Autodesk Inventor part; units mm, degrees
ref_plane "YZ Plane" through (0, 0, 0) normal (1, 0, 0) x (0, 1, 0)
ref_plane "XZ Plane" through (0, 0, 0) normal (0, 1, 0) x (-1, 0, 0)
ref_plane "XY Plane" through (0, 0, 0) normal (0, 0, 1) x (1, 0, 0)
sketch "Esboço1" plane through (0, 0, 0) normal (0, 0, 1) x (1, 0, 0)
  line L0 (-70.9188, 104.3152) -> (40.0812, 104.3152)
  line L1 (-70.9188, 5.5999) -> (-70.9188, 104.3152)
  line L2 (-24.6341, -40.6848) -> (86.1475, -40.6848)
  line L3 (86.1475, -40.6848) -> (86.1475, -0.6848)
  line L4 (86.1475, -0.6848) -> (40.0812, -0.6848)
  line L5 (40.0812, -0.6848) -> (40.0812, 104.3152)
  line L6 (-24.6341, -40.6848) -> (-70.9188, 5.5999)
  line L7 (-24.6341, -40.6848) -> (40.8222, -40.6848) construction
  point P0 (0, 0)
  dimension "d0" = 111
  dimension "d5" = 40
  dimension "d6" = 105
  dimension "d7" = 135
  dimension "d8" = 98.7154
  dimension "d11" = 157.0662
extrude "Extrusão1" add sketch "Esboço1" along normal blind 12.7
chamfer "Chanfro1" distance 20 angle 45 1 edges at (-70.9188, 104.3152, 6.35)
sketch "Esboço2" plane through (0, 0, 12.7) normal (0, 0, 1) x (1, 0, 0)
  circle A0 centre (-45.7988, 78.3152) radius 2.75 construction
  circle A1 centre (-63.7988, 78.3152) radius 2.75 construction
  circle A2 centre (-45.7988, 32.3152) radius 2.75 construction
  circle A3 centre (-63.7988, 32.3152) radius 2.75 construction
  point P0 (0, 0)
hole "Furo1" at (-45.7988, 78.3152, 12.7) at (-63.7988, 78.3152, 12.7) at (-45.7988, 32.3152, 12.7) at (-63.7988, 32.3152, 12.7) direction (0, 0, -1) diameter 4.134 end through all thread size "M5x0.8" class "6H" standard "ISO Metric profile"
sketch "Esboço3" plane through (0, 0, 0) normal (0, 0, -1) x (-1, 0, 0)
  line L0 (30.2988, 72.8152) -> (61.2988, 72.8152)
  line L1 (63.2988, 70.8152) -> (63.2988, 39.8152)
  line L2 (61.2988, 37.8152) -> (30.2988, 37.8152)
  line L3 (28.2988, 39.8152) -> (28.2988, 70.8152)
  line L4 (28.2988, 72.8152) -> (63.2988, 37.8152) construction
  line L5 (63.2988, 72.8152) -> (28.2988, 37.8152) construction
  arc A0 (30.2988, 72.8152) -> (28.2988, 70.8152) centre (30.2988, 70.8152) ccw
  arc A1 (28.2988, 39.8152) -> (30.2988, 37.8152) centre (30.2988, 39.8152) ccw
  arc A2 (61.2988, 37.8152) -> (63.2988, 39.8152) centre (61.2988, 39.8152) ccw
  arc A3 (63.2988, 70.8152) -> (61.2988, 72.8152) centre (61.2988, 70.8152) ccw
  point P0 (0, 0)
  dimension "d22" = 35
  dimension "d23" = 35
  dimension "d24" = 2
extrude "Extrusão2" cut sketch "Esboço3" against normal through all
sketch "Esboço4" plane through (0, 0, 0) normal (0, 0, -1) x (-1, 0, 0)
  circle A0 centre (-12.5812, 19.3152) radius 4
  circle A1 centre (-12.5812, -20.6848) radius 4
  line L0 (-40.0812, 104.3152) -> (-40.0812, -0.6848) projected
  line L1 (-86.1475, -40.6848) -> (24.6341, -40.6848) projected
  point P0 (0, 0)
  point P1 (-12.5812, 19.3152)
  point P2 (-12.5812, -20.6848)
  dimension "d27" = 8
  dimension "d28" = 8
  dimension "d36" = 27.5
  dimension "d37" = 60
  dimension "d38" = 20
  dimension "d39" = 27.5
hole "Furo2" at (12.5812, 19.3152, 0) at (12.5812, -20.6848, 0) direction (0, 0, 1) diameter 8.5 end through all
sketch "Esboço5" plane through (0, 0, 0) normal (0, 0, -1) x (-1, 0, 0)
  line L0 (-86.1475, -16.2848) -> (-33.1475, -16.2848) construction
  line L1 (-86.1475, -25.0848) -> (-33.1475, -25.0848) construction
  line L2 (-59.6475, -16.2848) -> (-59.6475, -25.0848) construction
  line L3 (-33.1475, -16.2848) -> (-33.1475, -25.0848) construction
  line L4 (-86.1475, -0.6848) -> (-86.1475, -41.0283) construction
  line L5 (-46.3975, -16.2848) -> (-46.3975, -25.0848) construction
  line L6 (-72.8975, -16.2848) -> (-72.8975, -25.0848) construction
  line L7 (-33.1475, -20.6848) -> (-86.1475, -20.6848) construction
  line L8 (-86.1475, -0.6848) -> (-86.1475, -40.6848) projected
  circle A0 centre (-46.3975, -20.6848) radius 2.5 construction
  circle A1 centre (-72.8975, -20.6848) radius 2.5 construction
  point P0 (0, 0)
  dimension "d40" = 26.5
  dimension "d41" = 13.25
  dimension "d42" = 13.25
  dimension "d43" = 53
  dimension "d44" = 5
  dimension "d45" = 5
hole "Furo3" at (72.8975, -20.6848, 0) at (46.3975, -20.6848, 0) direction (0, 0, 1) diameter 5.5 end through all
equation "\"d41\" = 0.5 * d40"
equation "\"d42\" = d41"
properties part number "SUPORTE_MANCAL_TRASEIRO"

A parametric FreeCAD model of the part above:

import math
import FreeCAD as App
import Part
import Sketcher

V = App.Vector
Q = App.Units.Quantity


def edges_at(feature, points):
    """Names of the edges that pass closest to the given points."""
    edges = feature.Shape.Edges
    near = lambda p: min(range(len(edges)), key=lambda i: edges[i].distToShape(Part.Vertex(*p))[0])
    return sorted({f"Edge{near(p) + 1}" for p in points})

doc = App.newDocument("Part")
body = doc.addObject("PartDesign::Body", "Body")

# Sketch on XY plane
sketch1 = doc.addObject("Sketcher::SketchObject", "Sketch")
body.addObject(sketch1)
sketch1.AttachmentSupport = (doc.XY_Plane, [""])
sketch1.MapMode = "FlatFace"
sketch1.addGeometry(Part.LineSegment(V(40.0812, 104.3152, 0), V(-70.9188, 104.3152, 0)), False)
sketch1.addGeometry(Part.LineSegment(V(-70.9188, 104.3152, 0), V(-70.9188, 5.5999, 0)), False)
sketch1.addGeometry(Part.LineSegment(V(-70.9188, 5.5999, 0), V(-24.6341, -40.6848, 0)), False)
sketch1.addGeometry(Part.LineSegment(V(-24.6341, -40.6848, 0), V(86.1475, -40.6848, 0)), False)
sketch1.addGeometry(Part.LineSegment(V(86.1475, -40.6848, 0), V(86.1475, -0.6848, 0)), False)
sketch1.addGeometry(Part.LineSegment(V(86.1475, -0.6848, 0), V(40.0812, -0.6848, 0)), False)
sketch1.addGeometry(Part.LineSegment(V(40.0812, -0.6848, 0), V(40.0812, 104.3152, 0)), False)
sketch1.addConstraint(Sketcher.Constraint("Coincident", 0, 2, 1, 1))
sketch1.addConstraint(Sketcher.Constraint("Coincident", 1, 2, 2, 1))
sketch1.addConstraint(Sketcher.Constraint("Coincident", 2, 2, 3, 1))
sketch1.addConstraint(Sketcher.Constraint("Coincident", 3, 2, 4, 1))
sketch1.addConstraint(Sketcher.Constraint("Coincident", 4, 2, 5, 1))
sketch1.addConstraint(Sketcher.Constraint("Coincident", 5, 2, 6, 1))
sketch1.addConstraint(Sketcher.Constraint("Coincident", 6, 2, 0, 1))
sketch1.addConstraint(Sketcher.Constraint("Horizontal", 0))
sketch1.addConstraint(Sketcher.Constraint("Vertical", 1))
sketch1.addConstraint(Sketcher.Constraint("Horizontal", 3))
sketch1.addConstraint(Sketcher.Constraint("Vertical", 4))
sketch1.addConstraint(Sketcher.Constraint("Horizontal", 5))
sketch1.addConstraint(Sketcher.Constraint("Vertical", 6))
sketch1.addConstraint(Sketcher.Constraint("DistanceX", 0, 2, 0, 1, 111.0))
sketch1.addConstraint(Sketcher.Constraint("DistanceY", 4, 1, 4, 2, 40.0))
sketch1.addConstraint(Sketcher.Constraint("DistanceY", 6, 1, 6, 2, 105.0))
sketch1.addConstraint(Sketcher.Constraint("Angle", 2, Q("-45 deg")))
sketch1.addConstraint(Sketcher.Constraint("DistanceY", 1, 2, 1, 1, 98.7153))
sketch1.addConstraint(Sketcher.Constraint("DistanceY", -1, 1, 1, 2, 5.6))
sketch1.addConstraint(Sketcher.Constraint("DistanceX", 1, 2, 3, 2, 157.0663))
sketch1.addConstraint(Sketcher.Constraint("DistanceX", 2, 2, -1, 1, 24.634))
pad1 = doc.addObject("PartDesign::Pad", "Pad")
body.addObject(pad1)
pad1.Profile = sketch1
pad1.Length = 12.7
doc.recompute()

chamfer = doc.addObject("PartDesign::Chamfer", "Chamfer")
body.addObject(chamfer)
chamfer.Base = (pad1, edges_at(pad1, [(-70.919, 104.315, 6.35)]))
chamfer.Size = 20

# Sketch on XY plane
sketch2 = doc.addObject("Sketcher::SketchObject", "Sketch001")
body.addObject(sketch2)
sketch2.AttachmentSupport = (doc.XY_Plane, [""])
sketch2.MapMode = "FlatFace"
sketch2.AttachmentOffset = App.Placement(V(0, 0, 12.7), App.Rotation())
sketch2.addGeometry(Part.Circle(V(-45.7988, 78.3152, 0), V(0, 0, 1), 2.067), False)
sketch2.addGeometry(Part.Circle(V(-63.7988, 78.3152, 0), V(0, 0, 1), 2.067), False)
sketch2.addGeometry(Part.Circle(V(-45.7988, 32.3152, 0), V(0, 0, 1), 2.067), False)
sketch2.addGeometry(Part.Circle(V(-63.7988, 32.3152, 0), V(0, 0, 1), 2.067), False)
sketch2.addConstraint(Sketcher.Constraint("Equal", 0, 1))
sketch2.addConstraint(Sketcher.Constraint("Equal", 1, 2))
sketch2.addConstraint(Sketcher.Constraint("Equal", 2, 3))
sketch2.addConstraint(Sketcher.Constraint("Horizontal", 0, 3, 1, 3))
sketch2.addConstraint(Sketcher.Constraint("Horizontal", 2, 3, 3, 3))
sketch2.addConstraint(Sketcher.Constraint("Vertical", 0, 3, 2, 3))
sketch2.addConstraint(Sketcher.Constraint("Vertical", 1, 3, 3, 3))
sketch2.addConstraint(Sketcher.Constraint("Diameter", 0, 4.134))
sketch2.addConstraint(Sketcher.Constraint("DistanceX", 1, 3, 0, 3, 18.0))
sketch2.addConstraint(Sketcher.Constraint("DistanceY", 2, 3, 0, 3, 46.0))
sketch2.addConstraint(Sketcher.Constraint("DistanceX", 0, 3, -1, 1, 45.7988))
sketch2.addConstraint(Sketcher.Constraint("DistanceY", -1, 1, 0, 3, 78.3152))
doc.recompute()
hole = doc.addObject("PartDesign::Hole", "Hole")
body.addObject(hole)
hole.Profile = sketch2
hole.ThreadType = "None"
hole.Diameter = 4.134
hole.DepthType = "ThroughAll"

# Sketch on XY plane
sketch3 = doc.addObject("Sketcher::SketchObject", "Sketch002")
body.addObject(sketch3)
sketch3.AttachmentSupport = (doc.XY_Plane, [""])
sketch3.MapMode = "FlatFace"
sketch3.addGeometry(Part.LineSegment(V(-61.2988, 72.8152, 0), V(-30.2988, 72.8152, 0)), False)
sketch3.addGeometry(Part.ArcOfCircle(Part.Circle(V(-30.2988, 70.8152, 0), V(0, 0, 1), 2), math.radians(0), math.radians(90)), False)
sketch3.addGeometry(Part.LineSegment(V(-28.2988, 70.8152, 0), V(-28.2988, 39.8152, 0)), False)
sketch3.addGeometry(Part.ArcOfCircle(Part.Circle(V(-30.2988, 39.8152, 0), V(0, 0, 1), 2), math.radians(-90), math.radians(0)), False)
sketch3.addGeometry(Part.LineSegment(V(-30.2988, 37.8152, 0), V(-61.2988, 37.8152, 0)), False)
sketch3.addGeometry(Part.ArcOfCircle(Part.Circle(V(-61.2988, 39.8152, 0), V(0, 0, 1), 2), math.radians(180), math.radians(270)), False)
sketch3.addGeometry(Part.LineSegment(V(-63.2988, 39.8152, 0), V(-63.2988, 70.8152, 0)), False)
sketch3.addGeometry(Part.ArcOfCircle(Part.Circle(V(-61.2988, 70.8152, 0), V(0, 0, 1), 2), math.radians(90), math.radians(180)), False)
sketch3.addConstraint(Sketcher.Constraint("Tangent", 0, 2, 1, 2))
sketch3.addConstraint(Sketcher.Constraint("Tangent", 1, 1, 2, 1))
sketch3.addConstraint(Sketcher.Constraint("Tangent", 2, 2, 3, 2))
sketch3.addConstraint(Sketcher.Constraint("Tangent", 3, 1, 4, 1))
sketch3.addConstraint(Sketcher.Constraint("Tangent", 4, 2, 5, 2))
sketch3.addConstraint(Sketcher.Constraint("Tangent", 5, 1, 6, 1))
sketch3.addConstraint(Sketcher.Constraint("Tangent", 6, 2, 7, 2))
sketch3.addConstraint(Sketcher.Constraint("Tangent", 7, 1, 0, 1))
sketch3.addConstraint(Sketcher.Constraint("Horizontal", 0))
sketch3.addConstraint(Sketcher.Constraint("Vertical", 2))
sketch3.addConstraint(Sketcher.Constraint("Horizontal", 4))
sketch3.addConstraint(Sketcher.Constraint("Vertical", 6))
sketch3.addConstraint(Sketcher.Constraint("Equal", 1, 3))
sketch3.addConstraint(Sketcher.Constraint("Equal", 3, 5))
sketch3.addConstraint(Sketcher.Constraint("Equal", 5, 7))
sketch3.addConstraint(Sketcher.Constraint("Equal", 4, 2))
sketch3.addConstraint(Sketcher.Constraint("Radius", 1, 2.0))
sketch3.addConstraint(Sketcher.Constraint("DistanceX", 0, 1, 0, 2, 31.0))
sketch3.addConstraint(Sketcher.Constraint("DistanceX", 1, 3, -1, 1, 30.2988))
sketch3.addConstraint(Sketcher.Constraint("DistanceY", -1, 1, 1, 3, 70.8152))
pocket1 = doc.addObject("PartDesign::Pocket", "Pocket")
body.addObject(pocket1)
pocket1.Profile = sketch3
pocket1.Type = "ThroughAll"
pocket1.Reversed = True

# Sketch on XY plane
sketch4 = doc.addObject("Sketcher::SketchObject", "Sketch003")
body.addObject(sketch4)
sketch4.AttachmentSupport = (doc.XY_Plane, [""])
sketch4.MapMode = "FlatFace"
sketch4.addGeometry(Part.Circle(V(12.5812, 19.3152, 0), V(0, 0, 1), 4.25), False)
sketch4.addGeometry(Part.Circle(V(12.5812, -20.6848, 0), V(0, 0, 1), 4.25), False)
sketch4.addConstraint(Sketcher.Constraint("Equal", 0, 1))
sketch4.addConstraint(Sketcher.Constraint("Vertical", 0, 3, 1, 3))
sketch4.addConstraint(Sketcher.Constraint("Diameter", 0, 8.5))
sketch4.addConstraint(Sketcher.Constraint("DistanceY", 1, 3, 0, 3, 40.0))
sketch4.addConstraint(Sketcher.Constraint("DistanceX", -1, 1, 0, 3, 12.5812))
sketch4.addConstraint(Sketcher.Constraint("DistanceY", -1, 1, 0, 3, 19.3152))
doc.recompute()
hole2 = doc.addObject("PartDesign::Hole", "Hole001")
body.addObject(hole2)
hole2.Profile = sketch4
hole2.ThreadType = "None"
hole2.Diameter = 8.5
hole2.DepthType = "ThroughAll"
hole2.Reversed = True

# Sketch on XY plane
sketch5 = doc.addObject("Sketcher::SketchObject", "Sketch004")
body.addObject(sketch5)
sketch5.AttachmentSupport = (doc.XY_Plane, [""])
sketch5.MapMode = "FlatFace"
sketch5.addGeometry(Part.Circle(V(72.8975, -20.6848, 0), V(0, 0, 1), 2.75), False)
sketch5.addGeometry(Part.Circle(V(46.3975, -20.6848, 0), V(0, 0, 1), 2.75), False)
sketch5.addConstraint(Sketcher.Constraint("Equal", 0, 1))
sketch5.addConstraint(Sketcher.Constraint("Horizontal", 0, 3, 1, 3))
sketch5.addConstraint(Sketcher.Constraint("Diameter", 0, 5.5))
sketch5.addConstraint(Sketcher.Constraint("DistanceX", 1, 3, 0, 3, 26.5))
sketch5.addConstraint(Sketcher.Constraint("DistanceX", -1, 1, 0, 3, 72.8975))
sketch5.addConstraint(Sketcher.Constraint("DistanceY", 0, 3, -1, 1, 20.6848))
doc.recompute()
hole3 = doc.addObject("PartDesign::Hole", "Hole002")
body.addObject(hole3)
hole3.Profile = sketch5
hole3.ThreadType = "None"
hole3.Diameter = 5.5
hole3.DepthType = "ThroughAll"
hole3.Reversed = True

doc.recompute()
